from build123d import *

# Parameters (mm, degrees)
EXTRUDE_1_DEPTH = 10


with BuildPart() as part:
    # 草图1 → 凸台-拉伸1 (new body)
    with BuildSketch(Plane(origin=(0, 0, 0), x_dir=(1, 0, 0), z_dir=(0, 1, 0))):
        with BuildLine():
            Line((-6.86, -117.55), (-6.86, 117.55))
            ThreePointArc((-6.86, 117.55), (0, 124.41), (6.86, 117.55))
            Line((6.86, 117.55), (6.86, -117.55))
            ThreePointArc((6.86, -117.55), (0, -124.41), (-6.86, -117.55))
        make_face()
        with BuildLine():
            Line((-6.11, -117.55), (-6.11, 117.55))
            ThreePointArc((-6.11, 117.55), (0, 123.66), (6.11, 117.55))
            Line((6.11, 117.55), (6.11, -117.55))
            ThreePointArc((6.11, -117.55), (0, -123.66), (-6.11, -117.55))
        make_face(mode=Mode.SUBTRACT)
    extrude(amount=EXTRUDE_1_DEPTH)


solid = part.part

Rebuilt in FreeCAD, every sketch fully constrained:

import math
import FreeCAD as App
import Part
import Sketcher

V = App.Vector

doc = App.newDocument("Part")
body = doc.addObject("PartDesign::Body", "Body")

sketch1 = body.newObject("Sketcher::SketchObject", "Sketch")
sketch1.AttachmentSupport = (doc.getObject("XZ_Plane"), [""])
sketch1.MapMode = "FlatFace"
sketch1.addGeometry([
    Part.LineSegment(V(-7, -118, 0), V(-7, 118, 0)),
    Part.ArcOfCircle(Part.Circle(V(0, 118, 0), V(0, 0, 1), 7), math.radians(0), math.radians(180)),
    Part.LineSegment(V(7, 118, 0), V(7, -118, 0)),
    Part.ArcOfCircle(Part.Circle(V(0, -118, 0), V(0, 0, 1), 7), math.radians(180), math.radians(360)),
    Part.LineSegment(V(-6, 118, 0), V(-6, -118, 0)),
    Part.ArcOfCircle(Part.Circle(V(0, -118, 0), V(0, 0, 1), 6), math.radians(180), math.radians(360)),
    Part.LineSegment(V(6, -118, 0), V(6, 118, 0)),
    Part.ArcOfCircle(Part.Circle(V(0, 118, 0), V(0, 0, 1), 6), math.radians(0), math.radians(180)),
], False)
sketch1.addConstraint([
    Sketcher.Constraint("Tangent", 0, 2, 1, 2),
    Sketcher.Constraint("Tangent", 1, 1, 2, 1),
    Sketcher.Constraint("Tangent", 2, 2, 3, 2),
    Sketcher.Constraint("Tangent", 3, 1, 0, 1),
    Sketcher.Constraint("Tangent", 4, 2, 5, 1),
    Sketcher.Constraint("Tangent", 5, 2, 6, 1),
    Sketcher.Constraint("Tangent", 6, 2, 7, 1),
    Sketcher.Constraint("Tangent", 7, 2, 4, 1),
    Sketcher.Constraint("Vertical", 0),
    Sketcher.Constraint("Vertical", 2),
    Sketcher.Constraint("Vertical", 4),
    Sketcher.Constraint("Vertical", 6),
    Sketcher.Constraint("Coincident", 5, 3, 3, 3),
    Sketcher.Constraint("Symmetric", 1, 3, 3, 3, -1, 1),
    Sketcher.Constraint("Horizontal", 7, 3, 0, 2),
    Sketcher.Constraint("Radius", 1, 6.86),
    Sketcher.Constraint("Radius", 5, 6.11),
    Sketcher.Constraint("DistanceY", 0, 1, 0, 2, 235.1),
])
pad1 = body.newObject("PartDesign::Pad", "Pad")
pad1.Profile = sketch1
pad1.Length = 10
pad1.Reversed = True

doc.recompute()
